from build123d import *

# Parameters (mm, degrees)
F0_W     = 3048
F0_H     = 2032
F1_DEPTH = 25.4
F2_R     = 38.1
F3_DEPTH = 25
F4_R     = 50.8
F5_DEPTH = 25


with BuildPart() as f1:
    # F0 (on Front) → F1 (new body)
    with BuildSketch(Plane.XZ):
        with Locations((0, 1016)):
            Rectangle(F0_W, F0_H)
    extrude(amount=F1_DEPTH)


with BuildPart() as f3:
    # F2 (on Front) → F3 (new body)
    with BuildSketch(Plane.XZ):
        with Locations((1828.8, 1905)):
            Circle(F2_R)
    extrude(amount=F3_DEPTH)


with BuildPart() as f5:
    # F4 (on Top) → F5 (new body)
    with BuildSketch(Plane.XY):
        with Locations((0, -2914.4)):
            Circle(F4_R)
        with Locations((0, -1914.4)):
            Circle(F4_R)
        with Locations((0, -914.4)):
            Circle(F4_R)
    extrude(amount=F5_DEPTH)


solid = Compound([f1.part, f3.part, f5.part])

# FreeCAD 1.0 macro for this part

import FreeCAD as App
import Part
import Sketcher
from FreeCAD import Vector
Q = App.Units.Quantity


def add_polygon(sketch, points):
    """Adds a closed chain of lines whose ends are joined by coincident constraints."""
    first, n = sketch.GeometryCount, len(points)
    for a, b in zip(points, points[1:] + points[:1]):
        sketch.addGeometry(Part.LineSegment(App.Vector(*a, 0), App.Vector(*b, 0)), False)
    for i in range(n):
        sketch.addConstraint(Sketcher.Constraint("Coincident", first + i, 2, first + (i + 1) % n, 1))

doc = App.newDocument("Part")
params = doc.addObject("Spreadsheet::Sheet", "Params")
for row, (alias, value) in enumerate([
    ("sketch1_width", "120 in"),
    ("sketch1_height", "80 in"),
    ("pad1_length", "1 in"),
    ("sketch2_diameter", "3 in"),
    ("pad2_length", "25 mm"),
    ("sketch3_diameter", "4 in"),
    ("pad3_length", "25 mm"),
], start=1):
    params.set(f"A{row}", alias)
    params.set(f"B{row}", "=" + value)
    params.setAlias(f"B{row}", alias)

body = doc.addObject("PartDesign::Body", "Body")

# Sketch on XZ plane
sketch1 = body.newObject("Sketcher::SketchObject", "Sketch")
sketch1.AttachmentSupport = (doc.getObject("XZ_Plane"), [""])
sketch1.MapMode = "FlatFace"
add_polygon(sketch1, [(-1524, 2032), (-1524, 0), (1524, 0), (1524, 2032)])  # lines 0-3
sketch1.addConstraint([
    Sketcher.Constraint("Vertical", 0),
    Sketcher.Constraint("Horizontal", 1),
    Sketcher.Constraint("Vertical", 2),
    Sketcher.Constraint("Horizontal", 3),
    Sketcher.Constraint("Symmetric", 0, 2, 1, 2, -1, 1),
    Sketcher.Constraint("DistanceX", 1, 1, 1, 2, Q("120 in")),
    Sketcher.Constraint("DistanceY", 0, 2, 0, 1, Q("80 in")),
])
sketch1.setExpression("Constraints[9]", "Params.sketch1_width")
sketch1.setExpression("Constraints[10]", "Params.sketch1_height")
pad1 = body.newObject("PartDesign::Pad", "Pad")
pad1.Profile = sketch1
pad1.setExpression("Length", "Params.pad1_length")
body2 = doc.addObject("PartDesign::Body", "Body001")

# Sketch on XZ plane
sketch2 = body2.newObject("Sketcher::SketchObject", "Sketch001")
sketch2.AttachmentSupport = (doc.getObject("XZ_Plane001"), [""])
sketch2.MapMode = "FlatFace"
sketch2.addGeometry(Part.Circle(Vector(1828.8, 1905, 0), Vector(0, 0, 1), 38.1), False)
sketch2.addConstraint([
    Sketcher.Constraint("Diameter", 0, Q("3 in")),
    Sketcher.Constraint("DistanceX", -1, 1, 0, 3, Q("72 in")),
    Sketcher.Constraint("DistanceY", -1, 1, 0, 3, Q("75 in")),
])
sketch2.setExpression("Constraints[0]", "Params.sketch2_diameter")
pad2 = body2.newObject("PartDesign::Pad", "Pad001")
pad2.Profile = sketch2
pad2.setExpression("Length", "Params.pad2_length")
body3 = doc.addObject("PartDesign::Body", "Body002")
body3.AllowCompound = True

# Sketch on XY plane
sketch3 = body3.newObject("Sketcher::SketchObject", "Sketch002")
sketch3.AttachmentSupport = (doc.getObject("XY_Plane002"), [""])
sketch3.MapMode = "FlatFace"
sketch3.addGeometry([
    Part.Circle(Vector(0, -2914.4, 0), Vector(0, 0, 1), 50.8),
    Part.Circle(Vector(0, -1914.4, 0), Vector(0, 0, 1), 50.8),
    Part.Circle(Vector(0, -914.4, 0), Vector(0, 0, 1), 50.8),
], False)
sketch3.addConstraint([
    Sketcher.Constraint("Equal", 0, 1),
    Sketcher.Constraint("Equal", 1, 2),
    Sketcher.Constraint("PointOnObject", 0, 3, -2),
    Sketcher.Constraint("PointOnObject", 1, 3, -2),
    Sketcher.Constraint("PointOnObject", 2, 3, -2),
    Sketcher.Constraint("Diameter", 0, Q("4 in")),
    Sketcher.Constraint("DistanceY", 2, 3, -1, 1, Q("36 in")),
    Sketcher.Constraint("DistanceY", 0, 3, -1, 1, 2914.4),
    Sketcher.Constraint("DistanceY", 1, 3, -1, 1, 1914.4),
])
sketch3.setExpression("Constraints[5]", "Params.sketch3_diameter")
pad3 = body3.newObject("PartDesign::Pad", "Pad002")
pad3.Profile = sketch3
pad3.setExpression("Length", "Params.pad3_length")

doc.recompute()
